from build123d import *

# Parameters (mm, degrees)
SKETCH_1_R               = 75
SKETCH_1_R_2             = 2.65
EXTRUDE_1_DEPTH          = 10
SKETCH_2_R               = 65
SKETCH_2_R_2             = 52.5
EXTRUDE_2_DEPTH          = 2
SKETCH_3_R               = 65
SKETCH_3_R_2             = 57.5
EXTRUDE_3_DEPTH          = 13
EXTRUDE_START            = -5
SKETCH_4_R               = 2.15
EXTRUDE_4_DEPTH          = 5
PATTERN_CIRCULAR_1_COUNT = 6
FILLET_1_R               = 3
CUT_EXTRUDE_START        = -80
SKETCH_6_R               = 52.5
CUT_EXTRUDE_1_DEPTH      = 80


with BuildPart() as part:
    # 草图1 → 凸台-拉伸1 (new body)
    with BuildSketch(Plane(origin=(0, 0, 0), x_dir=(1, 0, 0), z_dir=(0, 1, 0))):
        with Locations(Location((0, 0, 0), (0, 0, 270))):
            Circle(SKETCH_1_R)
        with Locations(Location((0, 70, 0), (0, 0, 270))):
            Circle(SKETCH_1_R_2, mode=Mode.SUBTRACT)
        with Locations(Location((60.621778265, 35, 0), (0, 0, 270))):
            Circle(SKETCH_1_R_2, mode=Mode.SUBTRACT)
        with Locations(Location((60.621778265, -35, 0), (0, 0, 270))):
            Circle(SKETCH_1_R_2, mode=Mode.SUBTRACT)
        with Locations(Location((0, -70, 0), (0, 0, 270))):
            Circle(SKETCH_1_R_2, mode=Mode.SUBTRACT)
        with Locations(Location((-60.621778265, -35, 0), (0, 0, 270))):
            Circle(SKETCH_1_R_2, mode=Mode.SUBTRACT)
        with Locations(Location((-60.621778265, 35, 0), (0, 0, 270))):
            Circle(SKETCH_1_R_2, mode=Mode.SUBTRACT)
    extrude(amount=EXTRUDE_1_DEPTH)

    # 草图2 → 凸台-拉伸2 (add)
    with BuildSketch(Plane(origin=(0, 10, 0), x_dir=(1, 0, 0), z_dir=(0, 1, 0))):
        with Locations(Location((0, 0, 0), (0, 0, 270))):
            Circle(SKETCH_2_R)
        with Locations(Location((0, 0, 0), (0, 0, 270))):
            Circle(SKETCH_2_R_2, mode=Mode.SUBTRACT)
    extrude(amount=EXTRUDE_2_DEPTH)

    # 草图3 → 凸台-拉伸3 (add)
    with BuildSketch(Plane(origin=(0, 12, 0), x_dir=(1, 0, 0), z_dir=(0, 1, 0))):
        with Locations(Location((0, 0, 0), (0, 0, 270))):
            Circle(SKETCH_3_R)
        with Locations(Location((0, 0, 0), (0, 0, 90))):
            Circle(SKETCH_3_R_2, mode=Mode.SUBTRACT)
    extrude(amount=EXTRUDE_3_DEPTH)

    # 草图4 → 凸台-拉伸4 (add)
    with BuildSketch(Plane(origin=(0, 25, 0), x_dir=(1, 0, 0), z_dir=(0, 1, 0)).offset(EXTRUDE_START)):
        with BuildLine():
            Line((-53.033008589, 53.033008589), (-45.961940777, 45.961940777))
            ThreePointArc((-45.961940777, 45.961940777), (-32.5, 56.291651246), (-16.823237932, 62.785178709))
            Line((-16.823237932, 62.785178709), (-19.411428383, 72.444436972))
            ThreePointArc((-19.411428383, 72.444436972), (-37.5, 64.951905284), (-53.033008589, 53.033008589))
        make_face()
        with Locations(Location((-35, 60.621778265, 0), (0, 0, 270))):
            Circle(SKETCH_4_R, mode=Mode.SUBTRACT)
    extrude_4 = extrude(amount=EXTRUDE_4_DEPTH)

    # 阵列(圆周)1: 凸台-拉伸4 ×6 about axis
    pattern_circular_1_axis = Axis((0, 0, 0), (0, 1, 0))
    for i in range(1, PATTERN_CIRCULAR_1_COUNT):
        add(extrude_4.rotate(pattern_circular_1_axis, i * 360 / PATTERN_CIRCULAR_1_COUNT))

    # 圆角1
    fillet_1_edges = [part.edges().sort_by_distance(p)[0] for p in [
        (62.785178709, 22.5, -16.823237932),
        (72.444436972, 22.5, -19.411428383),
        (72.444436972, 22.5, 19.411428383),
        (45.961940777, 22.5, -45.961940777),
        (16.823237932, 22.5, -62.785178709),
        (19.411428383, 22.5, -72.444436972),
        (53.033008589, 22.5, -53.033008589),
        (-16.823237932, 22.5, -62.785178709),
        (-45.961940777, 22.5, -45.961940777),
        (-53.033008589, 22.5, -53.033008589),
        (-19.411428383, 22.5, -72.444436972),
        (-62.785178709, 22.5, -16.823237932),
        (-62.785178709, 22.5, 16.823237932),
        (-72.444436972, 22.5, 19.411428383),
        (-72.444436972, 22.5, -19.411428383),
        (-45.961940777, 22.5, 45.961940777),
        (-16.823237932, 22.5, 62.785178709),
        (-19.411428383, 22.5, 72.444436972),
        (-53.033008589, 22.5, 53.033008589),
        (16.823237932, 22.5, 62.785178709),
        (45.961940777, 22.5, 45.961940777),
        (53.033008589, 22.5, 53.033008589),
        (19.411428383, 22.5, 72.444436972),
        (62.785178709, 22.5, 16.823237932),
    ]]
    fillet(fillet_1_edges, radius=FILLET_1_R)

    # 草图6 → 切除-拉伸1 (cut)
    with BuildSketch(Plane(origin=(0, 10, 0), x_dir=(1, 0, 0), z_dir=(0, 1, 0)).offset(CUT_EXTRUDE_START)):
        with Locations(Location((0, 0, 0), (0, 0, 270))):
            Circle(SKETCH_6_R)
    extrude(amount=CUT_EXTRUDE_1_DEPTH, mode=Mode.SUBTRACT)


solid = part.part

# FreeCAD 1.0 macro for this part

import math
import FreeCAD as App
import Part
import Sketcher

V = App.Vector
Q = App.Units.Quantity


def edges_at(feature, points):
    """Names of the edges that pass closest to the given points."""
    edges = feature.Shape.Edges
    near = lambda p: min(range(len(edges)), key=lambda i: edges[i].distToShape(Part.Vertex(*p))[0])
    return sorted({f"Edge{near(p) + 1}" for p in points})

doc = App.newDocument("Part")
params = doc.addObject("Spreadsheet::Sheet", "Params")
for row, (alias, value) in enumerate([
    ("sketch1_diameter", "150 mm"),
    ("sketch1_diameter2", "5.3 mm"),
    ("pad1_length", "10 mm"),
    ("sketch2_diameter", "130 mm"),
    ("sketch2_diameter2", "105 mm"),
    ("pad2_length", "2 mm"),
    ("sketch3_diameter", "130 mm"),
    ("sketch3_diameter2", "115 mm"),
    ("pad3_length", "13 mm"),
    ("sketch4_radius", "65 mm"),
    ("sketch4_radius2", "75 mm"),
    ("sketch4_diameter", "4.3 mm"),
    ("pad4_length", "5 mm"),
    ("fillet_radius", "3 mm"),
    ("sketch5_diameter", "105 mm"),
    ("pocket1_length", "80 mm"),
], start=1):
    params.set(f"A{row}", alias)
    params.set(f"B{row}", "=" + value)
    params.setAlias(f"B{row}", alias)

body = doc.addObject("PartDesign::Body", "Body")

sketch1 = body.newObject("Sketcher::SketchObject", "Sketch")
sketch1.AttachmentSupport = (doc.getObject("XZ_Plane"), [""])
sketch1.MapMode = "FlatFace"
sketch1.addGeometry([
    Part.Circle(V(0, 0, 0), V(0, 0, 1), 75),
    Part.Circle(V(-60.6, -35, 0), V(0, 0, 1), 2.6),
    Part.Circle(V(0, -70, 0), V(0, 0, 1), 2.6),
    Part.Circle(V(-60.6, 35, 0), V(0, 0, 1), 2.6),
    Part.Circle(V(60.6, -35, 0), V(0, 0, 1), 2.6),
    Part.Circle(V(0, 70, 0), V(0, 0, 1), 2.6),
    Part.Circle(V(60.6, 35, 0), V(0, 0, 1), 2.6),
], False)
sketch1.addConstraint([
    Sketcher.Constraint("Coincident", 0, 3, -1, 1),
    Sketcher.Constraint("Equal", 1, 2),
    Sketcher.Constraint("Equal", 2, 3),
    Sketcher.Constraint("Equal", 3, 4),
    Sketcher.Constraint("Equal", 4, 5),
    Sketcher.Constraint("Equal", 5, 6),
    Sketcher.Constraint("Symmetric", 3, 3, 4, 3, -1, 1),
    Sketcher.Constraint("Symmetric", 2, 3, 5, 3, -1, 1),
    Sketcher.Constraint("Symmetric", 1, 3, 6, 3, -1, 1),
    Sketcher.Constraint("Symmetric", 1, 3, 4, 3, -2),
    Sketcher.Constraint("PointOnObject", 2, 3, -2),
    Sketcher.Constraint("Diameter", 0, Q("150 mm")),
    Sketcher.Constraint("Diameter", 1, Q("5.3 mm")),
    Sketcher.Constraint("DistanceY", 1, 3, -1, 1, Q("35 mm")),
    Sketcher.Constraint("DistanceY", 2, 3, -1, 1, Q("70 mm")),
    Sketcher.Constraint("DistanceX", 1, 3, -1, 1, Q("60.621778 mm")),
])
sketch1.setExpression("Constraints[11]", "Params.sketch1_diameter")
sketch1.setExpression("Constraints[12]", "Params.sketch1_diameter2")
pad1 = body.newObject("PartDesign::Pad", "Pad")
pad1.Profile = sketch1
pad1.setExpression("Length", "Params.pad1_length")
pad1.Reversed = True

sketch2 = body.newObject("Sketcher::SketchObject", "Sketch001")
sketch2.AttachmentSupport = (doc.getObject("XZ_Plane"), [""])
sketch2.MapMode = "FlatFace"
sketch2.AttachmentOffset = App.Placement(V(0, 0, -10), App.Rotation())
sketch2.addGeometry([
    Part.Circle(V(0, 0, 0), V(0, 0, 1), 65),
    Part.Circle(V(0, 0, 0), V(0, 0, 1), 52),
], False)
sketch2.addConstraint([
    Sketcher.Constraint("Coincident", 0, 3, -1, 1),
    Sketcher.Constraint("Coincident", 1, 3, -1, 1),
    Sketcher.Constraint("Diameter", 0, Q("130 mm")),
    Sketcher.Constraint("Diameter", 1, Q("105 mm")),
])
sketch2.setExpression("Constraints[2]", "Params.sketch2_diameter")
sketch2.setExpression("Constraints[3]", "Params.sketch2_diameter2")
pad2 = body.newObject("PartDesign::Pad", "Pad001")
pad2.Profile = sketch2
pad2.setExpression("Length", "Params.pad2_length")
pad2.Reversed = True

sketch3 = body.newObject("Sketcher::SketchObject", "Sketch002")
sketch3.AttachmentSupport = (doc.getObject("XZ_Plane"), [""])
sketch3.MapMode = "FlatFace"
sketch3.AttachmentOffset = App.Placement(V(0, 0, -12), App.Rotation())
sketch3.addGeometry([
    Part.Circle(V(0, 0, 0), V(0, 0, 1), 65),
    Part.Circle(V(0, 0, 0), V(0, 0, 1), 58),
], False)
sketch3.addConstraint([
    Sketcher.Constraint("Coincident", 0, 3, -1, 1),
    Sketcher.Constraint("Coincident", 1, 3, -1, 1),
    Sketcher.Constraint("Diameter", 0, Q("130 mm")),
    Sketcher.Constraint("Diameter", 1, Q("115 mm")),
])
sketch3.setExpression("Constraints[2]", "Params.sketch3_diameter")
sketch3.setExpression("Constraints[3]", "Params.sketch3_diameter2")
pad3 = body.newObject("PartDesign::Pad", "Pad002")
pad3.Profile = sketch3
pad3.setExpression("Length", "Params.pad3_length")
pad3.Reversed = True

sketch4 = body.newObject("Sketcher::SketchObject", "Sketch003")
sketch4.AttachmentSupport = (doc.getObject("XZ_Plane"), [""])
sketch4.MapMode = "FlatFace"
sketch4.AttachmentOffset = App.Placement(V(0, 0, -20), App.Rotation())
sketch4.addGeometry([
    Part.LineSegment(V(-53, -53, 0), V(-46, -46, 0)),
    Part.ArcOfCircle(Part.Circle(V(0, 0, 0), V(0, 0, 1), 65), math.radians(-135), math.radians(-105)),
    Part.LineSegment(V(-16.8, -62.8, 0), V(-19.4, -72.4, 0)),
    Part.ArcOfCircle(Part.Circle(V(0, 0, 0), V(0, 0, 1), 75), math.radians(-135), math.radians(-105)),
    Part.Circle(V(-35, -60.6, 0), V(0, 0, 1), 2.1),
], False)
sketch4.addConstraint([
    Sketcher.Constraint("Coincident", 0, 2, 1, 1),
    Sketcher.Constraint("Coincident", 1, 2, 2, 1),
    Sketcher.Constraint("Coincident", 2, 2, 3, 2),
    Sketcher.Constraint("Coincident", 3, 1, 0, 1),
    Sketcher.Constraint("Coincident", 1, 3, -1, 1),
    Sketcher.Constraint("Coincident", 3, 3, -1, 1),
    Sketcher.Constraint("Radius", 1, Q("65 mm")),
    Sketcher.Constraint("Radius", 3, Q("75 mm")),
    Sketcher.Constraint("Diameter", 4, Q("4.3 mm")),
    Sketcher.Constraint("Angle", 0, Q("45 deg")),
    Sketcher.Constraint("Angle", 2, Q("-105 deg")),
    Sketcher.Constraint("DistanceX", 4, 3, -1, 1, Q("35 mm")),
    Sketcher.Constraint("DistanceY", 1, 2, 4, 3, Q("2.1634 mm")),
    Sketcher.Constraint("DistanceY", 4, 3, -1, 1, Q("60.621778 mm")),
    Sketcher.Constraint("DistanceX", 0, 2, -1, 1, Q("45.961941 mm")),
])
sketch4.setExpression("Constraints[6]", "Params.sketch4_radius")
sketch4.setExpression("Constraints[7]", "Params.sketch4_radius2")
sketch4.setExpression("Constraints[8]", "Params.sketch4_diameter")
pad4 = body.newObject("PartDesign::Pad", "Pad003")
pad4.Profile = sketch4
pad4.setExpression("Length", "Params.pad4_length")
pad4.Reversed = True
doc.recompute()

polarpattern = body.newObject("PartDesign::PolarPattern", "PolarPattern")
polarpattern.Originals = [pad4]
polarpattern.Axis = (doc.getObject("Y_Axis"), [""])
polarpattern.Angle = 360
polarpattern.Occurrences = 6
body.Tip = polarpattern
doc.recompute()

fillet = body.newObject("PartDesign::Fillet", "Fillet")
fillet.Base = (polarpattern, edges_at(polarpattern, [
    (62.785, 22.5, -16.823),
    (72.444, 22.5, -19.411),
    (72.444, 22.5, 19.411),
    (45.962, 22.5, -45.962),
    (16.823, 22.5, -62.785),
    (19.411, 22.5, -72.444),
    (53.033, 22.5, -53.033),
    (-16.823, 22.5, -62.785),
    (-45.962, 22.5, -45.962),
    (-53.033, 22.5, -53.033),
    (-19.411, 22.5, -72.444),
    (-62.785, 22.5, -16.823),
    (-62.785, 22.5, 16.823),
    (-72.444, 22.5, 19.411),
    (-72.444, 22.5, -19.411),
    (-45.962, 22.5, 45.962),
    (-16.823, 22.5, 62.785),
    (-19.411, 22.5, 72.444),
    (-53.033, 22.5, 53.033),
    (16.823, 22.5, 62.785),
    (45.962, 22.5, 45.962),
    (53.033, 22.5, 53.033),
    (19.411, 22.5, 72.444),
    (62.785, 22.5, 16.823),
]))
fillet.setExpression("Radius", "Params.fillet_radius")

sketch5 = body.newObject("Sketcher::SketchObject", "Sketch004")
sketch5.AttachmentSupport = (doc.getObject("XZ_Plane"), [""])
sketch5.MapMode = "FlatFace"
sketch5.AttachmentOffset = App.Placement(V(0, 0, 70), App.Rotation())
sketch5.addGeometry(Part.Circle(V(0, 0, 0), V(0, 0, 1), 52), False)
sketch5.addConstraint([
    Sketcher.Constraint("Coincident", 0, 3, -1, 1),
    Sketcher.Constraint("Diameter", 0, Q("105 mm")),
])
sketch5.setExpression("Constraints[1]", "Params.sketch5_diameter")
pocket1 = body.newObject("PartDesign::Pocket", "Pocket")
pocket1.Profile = sketch5
pocket1.setExpression("Length", "Params.pocket1_length")

doc.recompute()
